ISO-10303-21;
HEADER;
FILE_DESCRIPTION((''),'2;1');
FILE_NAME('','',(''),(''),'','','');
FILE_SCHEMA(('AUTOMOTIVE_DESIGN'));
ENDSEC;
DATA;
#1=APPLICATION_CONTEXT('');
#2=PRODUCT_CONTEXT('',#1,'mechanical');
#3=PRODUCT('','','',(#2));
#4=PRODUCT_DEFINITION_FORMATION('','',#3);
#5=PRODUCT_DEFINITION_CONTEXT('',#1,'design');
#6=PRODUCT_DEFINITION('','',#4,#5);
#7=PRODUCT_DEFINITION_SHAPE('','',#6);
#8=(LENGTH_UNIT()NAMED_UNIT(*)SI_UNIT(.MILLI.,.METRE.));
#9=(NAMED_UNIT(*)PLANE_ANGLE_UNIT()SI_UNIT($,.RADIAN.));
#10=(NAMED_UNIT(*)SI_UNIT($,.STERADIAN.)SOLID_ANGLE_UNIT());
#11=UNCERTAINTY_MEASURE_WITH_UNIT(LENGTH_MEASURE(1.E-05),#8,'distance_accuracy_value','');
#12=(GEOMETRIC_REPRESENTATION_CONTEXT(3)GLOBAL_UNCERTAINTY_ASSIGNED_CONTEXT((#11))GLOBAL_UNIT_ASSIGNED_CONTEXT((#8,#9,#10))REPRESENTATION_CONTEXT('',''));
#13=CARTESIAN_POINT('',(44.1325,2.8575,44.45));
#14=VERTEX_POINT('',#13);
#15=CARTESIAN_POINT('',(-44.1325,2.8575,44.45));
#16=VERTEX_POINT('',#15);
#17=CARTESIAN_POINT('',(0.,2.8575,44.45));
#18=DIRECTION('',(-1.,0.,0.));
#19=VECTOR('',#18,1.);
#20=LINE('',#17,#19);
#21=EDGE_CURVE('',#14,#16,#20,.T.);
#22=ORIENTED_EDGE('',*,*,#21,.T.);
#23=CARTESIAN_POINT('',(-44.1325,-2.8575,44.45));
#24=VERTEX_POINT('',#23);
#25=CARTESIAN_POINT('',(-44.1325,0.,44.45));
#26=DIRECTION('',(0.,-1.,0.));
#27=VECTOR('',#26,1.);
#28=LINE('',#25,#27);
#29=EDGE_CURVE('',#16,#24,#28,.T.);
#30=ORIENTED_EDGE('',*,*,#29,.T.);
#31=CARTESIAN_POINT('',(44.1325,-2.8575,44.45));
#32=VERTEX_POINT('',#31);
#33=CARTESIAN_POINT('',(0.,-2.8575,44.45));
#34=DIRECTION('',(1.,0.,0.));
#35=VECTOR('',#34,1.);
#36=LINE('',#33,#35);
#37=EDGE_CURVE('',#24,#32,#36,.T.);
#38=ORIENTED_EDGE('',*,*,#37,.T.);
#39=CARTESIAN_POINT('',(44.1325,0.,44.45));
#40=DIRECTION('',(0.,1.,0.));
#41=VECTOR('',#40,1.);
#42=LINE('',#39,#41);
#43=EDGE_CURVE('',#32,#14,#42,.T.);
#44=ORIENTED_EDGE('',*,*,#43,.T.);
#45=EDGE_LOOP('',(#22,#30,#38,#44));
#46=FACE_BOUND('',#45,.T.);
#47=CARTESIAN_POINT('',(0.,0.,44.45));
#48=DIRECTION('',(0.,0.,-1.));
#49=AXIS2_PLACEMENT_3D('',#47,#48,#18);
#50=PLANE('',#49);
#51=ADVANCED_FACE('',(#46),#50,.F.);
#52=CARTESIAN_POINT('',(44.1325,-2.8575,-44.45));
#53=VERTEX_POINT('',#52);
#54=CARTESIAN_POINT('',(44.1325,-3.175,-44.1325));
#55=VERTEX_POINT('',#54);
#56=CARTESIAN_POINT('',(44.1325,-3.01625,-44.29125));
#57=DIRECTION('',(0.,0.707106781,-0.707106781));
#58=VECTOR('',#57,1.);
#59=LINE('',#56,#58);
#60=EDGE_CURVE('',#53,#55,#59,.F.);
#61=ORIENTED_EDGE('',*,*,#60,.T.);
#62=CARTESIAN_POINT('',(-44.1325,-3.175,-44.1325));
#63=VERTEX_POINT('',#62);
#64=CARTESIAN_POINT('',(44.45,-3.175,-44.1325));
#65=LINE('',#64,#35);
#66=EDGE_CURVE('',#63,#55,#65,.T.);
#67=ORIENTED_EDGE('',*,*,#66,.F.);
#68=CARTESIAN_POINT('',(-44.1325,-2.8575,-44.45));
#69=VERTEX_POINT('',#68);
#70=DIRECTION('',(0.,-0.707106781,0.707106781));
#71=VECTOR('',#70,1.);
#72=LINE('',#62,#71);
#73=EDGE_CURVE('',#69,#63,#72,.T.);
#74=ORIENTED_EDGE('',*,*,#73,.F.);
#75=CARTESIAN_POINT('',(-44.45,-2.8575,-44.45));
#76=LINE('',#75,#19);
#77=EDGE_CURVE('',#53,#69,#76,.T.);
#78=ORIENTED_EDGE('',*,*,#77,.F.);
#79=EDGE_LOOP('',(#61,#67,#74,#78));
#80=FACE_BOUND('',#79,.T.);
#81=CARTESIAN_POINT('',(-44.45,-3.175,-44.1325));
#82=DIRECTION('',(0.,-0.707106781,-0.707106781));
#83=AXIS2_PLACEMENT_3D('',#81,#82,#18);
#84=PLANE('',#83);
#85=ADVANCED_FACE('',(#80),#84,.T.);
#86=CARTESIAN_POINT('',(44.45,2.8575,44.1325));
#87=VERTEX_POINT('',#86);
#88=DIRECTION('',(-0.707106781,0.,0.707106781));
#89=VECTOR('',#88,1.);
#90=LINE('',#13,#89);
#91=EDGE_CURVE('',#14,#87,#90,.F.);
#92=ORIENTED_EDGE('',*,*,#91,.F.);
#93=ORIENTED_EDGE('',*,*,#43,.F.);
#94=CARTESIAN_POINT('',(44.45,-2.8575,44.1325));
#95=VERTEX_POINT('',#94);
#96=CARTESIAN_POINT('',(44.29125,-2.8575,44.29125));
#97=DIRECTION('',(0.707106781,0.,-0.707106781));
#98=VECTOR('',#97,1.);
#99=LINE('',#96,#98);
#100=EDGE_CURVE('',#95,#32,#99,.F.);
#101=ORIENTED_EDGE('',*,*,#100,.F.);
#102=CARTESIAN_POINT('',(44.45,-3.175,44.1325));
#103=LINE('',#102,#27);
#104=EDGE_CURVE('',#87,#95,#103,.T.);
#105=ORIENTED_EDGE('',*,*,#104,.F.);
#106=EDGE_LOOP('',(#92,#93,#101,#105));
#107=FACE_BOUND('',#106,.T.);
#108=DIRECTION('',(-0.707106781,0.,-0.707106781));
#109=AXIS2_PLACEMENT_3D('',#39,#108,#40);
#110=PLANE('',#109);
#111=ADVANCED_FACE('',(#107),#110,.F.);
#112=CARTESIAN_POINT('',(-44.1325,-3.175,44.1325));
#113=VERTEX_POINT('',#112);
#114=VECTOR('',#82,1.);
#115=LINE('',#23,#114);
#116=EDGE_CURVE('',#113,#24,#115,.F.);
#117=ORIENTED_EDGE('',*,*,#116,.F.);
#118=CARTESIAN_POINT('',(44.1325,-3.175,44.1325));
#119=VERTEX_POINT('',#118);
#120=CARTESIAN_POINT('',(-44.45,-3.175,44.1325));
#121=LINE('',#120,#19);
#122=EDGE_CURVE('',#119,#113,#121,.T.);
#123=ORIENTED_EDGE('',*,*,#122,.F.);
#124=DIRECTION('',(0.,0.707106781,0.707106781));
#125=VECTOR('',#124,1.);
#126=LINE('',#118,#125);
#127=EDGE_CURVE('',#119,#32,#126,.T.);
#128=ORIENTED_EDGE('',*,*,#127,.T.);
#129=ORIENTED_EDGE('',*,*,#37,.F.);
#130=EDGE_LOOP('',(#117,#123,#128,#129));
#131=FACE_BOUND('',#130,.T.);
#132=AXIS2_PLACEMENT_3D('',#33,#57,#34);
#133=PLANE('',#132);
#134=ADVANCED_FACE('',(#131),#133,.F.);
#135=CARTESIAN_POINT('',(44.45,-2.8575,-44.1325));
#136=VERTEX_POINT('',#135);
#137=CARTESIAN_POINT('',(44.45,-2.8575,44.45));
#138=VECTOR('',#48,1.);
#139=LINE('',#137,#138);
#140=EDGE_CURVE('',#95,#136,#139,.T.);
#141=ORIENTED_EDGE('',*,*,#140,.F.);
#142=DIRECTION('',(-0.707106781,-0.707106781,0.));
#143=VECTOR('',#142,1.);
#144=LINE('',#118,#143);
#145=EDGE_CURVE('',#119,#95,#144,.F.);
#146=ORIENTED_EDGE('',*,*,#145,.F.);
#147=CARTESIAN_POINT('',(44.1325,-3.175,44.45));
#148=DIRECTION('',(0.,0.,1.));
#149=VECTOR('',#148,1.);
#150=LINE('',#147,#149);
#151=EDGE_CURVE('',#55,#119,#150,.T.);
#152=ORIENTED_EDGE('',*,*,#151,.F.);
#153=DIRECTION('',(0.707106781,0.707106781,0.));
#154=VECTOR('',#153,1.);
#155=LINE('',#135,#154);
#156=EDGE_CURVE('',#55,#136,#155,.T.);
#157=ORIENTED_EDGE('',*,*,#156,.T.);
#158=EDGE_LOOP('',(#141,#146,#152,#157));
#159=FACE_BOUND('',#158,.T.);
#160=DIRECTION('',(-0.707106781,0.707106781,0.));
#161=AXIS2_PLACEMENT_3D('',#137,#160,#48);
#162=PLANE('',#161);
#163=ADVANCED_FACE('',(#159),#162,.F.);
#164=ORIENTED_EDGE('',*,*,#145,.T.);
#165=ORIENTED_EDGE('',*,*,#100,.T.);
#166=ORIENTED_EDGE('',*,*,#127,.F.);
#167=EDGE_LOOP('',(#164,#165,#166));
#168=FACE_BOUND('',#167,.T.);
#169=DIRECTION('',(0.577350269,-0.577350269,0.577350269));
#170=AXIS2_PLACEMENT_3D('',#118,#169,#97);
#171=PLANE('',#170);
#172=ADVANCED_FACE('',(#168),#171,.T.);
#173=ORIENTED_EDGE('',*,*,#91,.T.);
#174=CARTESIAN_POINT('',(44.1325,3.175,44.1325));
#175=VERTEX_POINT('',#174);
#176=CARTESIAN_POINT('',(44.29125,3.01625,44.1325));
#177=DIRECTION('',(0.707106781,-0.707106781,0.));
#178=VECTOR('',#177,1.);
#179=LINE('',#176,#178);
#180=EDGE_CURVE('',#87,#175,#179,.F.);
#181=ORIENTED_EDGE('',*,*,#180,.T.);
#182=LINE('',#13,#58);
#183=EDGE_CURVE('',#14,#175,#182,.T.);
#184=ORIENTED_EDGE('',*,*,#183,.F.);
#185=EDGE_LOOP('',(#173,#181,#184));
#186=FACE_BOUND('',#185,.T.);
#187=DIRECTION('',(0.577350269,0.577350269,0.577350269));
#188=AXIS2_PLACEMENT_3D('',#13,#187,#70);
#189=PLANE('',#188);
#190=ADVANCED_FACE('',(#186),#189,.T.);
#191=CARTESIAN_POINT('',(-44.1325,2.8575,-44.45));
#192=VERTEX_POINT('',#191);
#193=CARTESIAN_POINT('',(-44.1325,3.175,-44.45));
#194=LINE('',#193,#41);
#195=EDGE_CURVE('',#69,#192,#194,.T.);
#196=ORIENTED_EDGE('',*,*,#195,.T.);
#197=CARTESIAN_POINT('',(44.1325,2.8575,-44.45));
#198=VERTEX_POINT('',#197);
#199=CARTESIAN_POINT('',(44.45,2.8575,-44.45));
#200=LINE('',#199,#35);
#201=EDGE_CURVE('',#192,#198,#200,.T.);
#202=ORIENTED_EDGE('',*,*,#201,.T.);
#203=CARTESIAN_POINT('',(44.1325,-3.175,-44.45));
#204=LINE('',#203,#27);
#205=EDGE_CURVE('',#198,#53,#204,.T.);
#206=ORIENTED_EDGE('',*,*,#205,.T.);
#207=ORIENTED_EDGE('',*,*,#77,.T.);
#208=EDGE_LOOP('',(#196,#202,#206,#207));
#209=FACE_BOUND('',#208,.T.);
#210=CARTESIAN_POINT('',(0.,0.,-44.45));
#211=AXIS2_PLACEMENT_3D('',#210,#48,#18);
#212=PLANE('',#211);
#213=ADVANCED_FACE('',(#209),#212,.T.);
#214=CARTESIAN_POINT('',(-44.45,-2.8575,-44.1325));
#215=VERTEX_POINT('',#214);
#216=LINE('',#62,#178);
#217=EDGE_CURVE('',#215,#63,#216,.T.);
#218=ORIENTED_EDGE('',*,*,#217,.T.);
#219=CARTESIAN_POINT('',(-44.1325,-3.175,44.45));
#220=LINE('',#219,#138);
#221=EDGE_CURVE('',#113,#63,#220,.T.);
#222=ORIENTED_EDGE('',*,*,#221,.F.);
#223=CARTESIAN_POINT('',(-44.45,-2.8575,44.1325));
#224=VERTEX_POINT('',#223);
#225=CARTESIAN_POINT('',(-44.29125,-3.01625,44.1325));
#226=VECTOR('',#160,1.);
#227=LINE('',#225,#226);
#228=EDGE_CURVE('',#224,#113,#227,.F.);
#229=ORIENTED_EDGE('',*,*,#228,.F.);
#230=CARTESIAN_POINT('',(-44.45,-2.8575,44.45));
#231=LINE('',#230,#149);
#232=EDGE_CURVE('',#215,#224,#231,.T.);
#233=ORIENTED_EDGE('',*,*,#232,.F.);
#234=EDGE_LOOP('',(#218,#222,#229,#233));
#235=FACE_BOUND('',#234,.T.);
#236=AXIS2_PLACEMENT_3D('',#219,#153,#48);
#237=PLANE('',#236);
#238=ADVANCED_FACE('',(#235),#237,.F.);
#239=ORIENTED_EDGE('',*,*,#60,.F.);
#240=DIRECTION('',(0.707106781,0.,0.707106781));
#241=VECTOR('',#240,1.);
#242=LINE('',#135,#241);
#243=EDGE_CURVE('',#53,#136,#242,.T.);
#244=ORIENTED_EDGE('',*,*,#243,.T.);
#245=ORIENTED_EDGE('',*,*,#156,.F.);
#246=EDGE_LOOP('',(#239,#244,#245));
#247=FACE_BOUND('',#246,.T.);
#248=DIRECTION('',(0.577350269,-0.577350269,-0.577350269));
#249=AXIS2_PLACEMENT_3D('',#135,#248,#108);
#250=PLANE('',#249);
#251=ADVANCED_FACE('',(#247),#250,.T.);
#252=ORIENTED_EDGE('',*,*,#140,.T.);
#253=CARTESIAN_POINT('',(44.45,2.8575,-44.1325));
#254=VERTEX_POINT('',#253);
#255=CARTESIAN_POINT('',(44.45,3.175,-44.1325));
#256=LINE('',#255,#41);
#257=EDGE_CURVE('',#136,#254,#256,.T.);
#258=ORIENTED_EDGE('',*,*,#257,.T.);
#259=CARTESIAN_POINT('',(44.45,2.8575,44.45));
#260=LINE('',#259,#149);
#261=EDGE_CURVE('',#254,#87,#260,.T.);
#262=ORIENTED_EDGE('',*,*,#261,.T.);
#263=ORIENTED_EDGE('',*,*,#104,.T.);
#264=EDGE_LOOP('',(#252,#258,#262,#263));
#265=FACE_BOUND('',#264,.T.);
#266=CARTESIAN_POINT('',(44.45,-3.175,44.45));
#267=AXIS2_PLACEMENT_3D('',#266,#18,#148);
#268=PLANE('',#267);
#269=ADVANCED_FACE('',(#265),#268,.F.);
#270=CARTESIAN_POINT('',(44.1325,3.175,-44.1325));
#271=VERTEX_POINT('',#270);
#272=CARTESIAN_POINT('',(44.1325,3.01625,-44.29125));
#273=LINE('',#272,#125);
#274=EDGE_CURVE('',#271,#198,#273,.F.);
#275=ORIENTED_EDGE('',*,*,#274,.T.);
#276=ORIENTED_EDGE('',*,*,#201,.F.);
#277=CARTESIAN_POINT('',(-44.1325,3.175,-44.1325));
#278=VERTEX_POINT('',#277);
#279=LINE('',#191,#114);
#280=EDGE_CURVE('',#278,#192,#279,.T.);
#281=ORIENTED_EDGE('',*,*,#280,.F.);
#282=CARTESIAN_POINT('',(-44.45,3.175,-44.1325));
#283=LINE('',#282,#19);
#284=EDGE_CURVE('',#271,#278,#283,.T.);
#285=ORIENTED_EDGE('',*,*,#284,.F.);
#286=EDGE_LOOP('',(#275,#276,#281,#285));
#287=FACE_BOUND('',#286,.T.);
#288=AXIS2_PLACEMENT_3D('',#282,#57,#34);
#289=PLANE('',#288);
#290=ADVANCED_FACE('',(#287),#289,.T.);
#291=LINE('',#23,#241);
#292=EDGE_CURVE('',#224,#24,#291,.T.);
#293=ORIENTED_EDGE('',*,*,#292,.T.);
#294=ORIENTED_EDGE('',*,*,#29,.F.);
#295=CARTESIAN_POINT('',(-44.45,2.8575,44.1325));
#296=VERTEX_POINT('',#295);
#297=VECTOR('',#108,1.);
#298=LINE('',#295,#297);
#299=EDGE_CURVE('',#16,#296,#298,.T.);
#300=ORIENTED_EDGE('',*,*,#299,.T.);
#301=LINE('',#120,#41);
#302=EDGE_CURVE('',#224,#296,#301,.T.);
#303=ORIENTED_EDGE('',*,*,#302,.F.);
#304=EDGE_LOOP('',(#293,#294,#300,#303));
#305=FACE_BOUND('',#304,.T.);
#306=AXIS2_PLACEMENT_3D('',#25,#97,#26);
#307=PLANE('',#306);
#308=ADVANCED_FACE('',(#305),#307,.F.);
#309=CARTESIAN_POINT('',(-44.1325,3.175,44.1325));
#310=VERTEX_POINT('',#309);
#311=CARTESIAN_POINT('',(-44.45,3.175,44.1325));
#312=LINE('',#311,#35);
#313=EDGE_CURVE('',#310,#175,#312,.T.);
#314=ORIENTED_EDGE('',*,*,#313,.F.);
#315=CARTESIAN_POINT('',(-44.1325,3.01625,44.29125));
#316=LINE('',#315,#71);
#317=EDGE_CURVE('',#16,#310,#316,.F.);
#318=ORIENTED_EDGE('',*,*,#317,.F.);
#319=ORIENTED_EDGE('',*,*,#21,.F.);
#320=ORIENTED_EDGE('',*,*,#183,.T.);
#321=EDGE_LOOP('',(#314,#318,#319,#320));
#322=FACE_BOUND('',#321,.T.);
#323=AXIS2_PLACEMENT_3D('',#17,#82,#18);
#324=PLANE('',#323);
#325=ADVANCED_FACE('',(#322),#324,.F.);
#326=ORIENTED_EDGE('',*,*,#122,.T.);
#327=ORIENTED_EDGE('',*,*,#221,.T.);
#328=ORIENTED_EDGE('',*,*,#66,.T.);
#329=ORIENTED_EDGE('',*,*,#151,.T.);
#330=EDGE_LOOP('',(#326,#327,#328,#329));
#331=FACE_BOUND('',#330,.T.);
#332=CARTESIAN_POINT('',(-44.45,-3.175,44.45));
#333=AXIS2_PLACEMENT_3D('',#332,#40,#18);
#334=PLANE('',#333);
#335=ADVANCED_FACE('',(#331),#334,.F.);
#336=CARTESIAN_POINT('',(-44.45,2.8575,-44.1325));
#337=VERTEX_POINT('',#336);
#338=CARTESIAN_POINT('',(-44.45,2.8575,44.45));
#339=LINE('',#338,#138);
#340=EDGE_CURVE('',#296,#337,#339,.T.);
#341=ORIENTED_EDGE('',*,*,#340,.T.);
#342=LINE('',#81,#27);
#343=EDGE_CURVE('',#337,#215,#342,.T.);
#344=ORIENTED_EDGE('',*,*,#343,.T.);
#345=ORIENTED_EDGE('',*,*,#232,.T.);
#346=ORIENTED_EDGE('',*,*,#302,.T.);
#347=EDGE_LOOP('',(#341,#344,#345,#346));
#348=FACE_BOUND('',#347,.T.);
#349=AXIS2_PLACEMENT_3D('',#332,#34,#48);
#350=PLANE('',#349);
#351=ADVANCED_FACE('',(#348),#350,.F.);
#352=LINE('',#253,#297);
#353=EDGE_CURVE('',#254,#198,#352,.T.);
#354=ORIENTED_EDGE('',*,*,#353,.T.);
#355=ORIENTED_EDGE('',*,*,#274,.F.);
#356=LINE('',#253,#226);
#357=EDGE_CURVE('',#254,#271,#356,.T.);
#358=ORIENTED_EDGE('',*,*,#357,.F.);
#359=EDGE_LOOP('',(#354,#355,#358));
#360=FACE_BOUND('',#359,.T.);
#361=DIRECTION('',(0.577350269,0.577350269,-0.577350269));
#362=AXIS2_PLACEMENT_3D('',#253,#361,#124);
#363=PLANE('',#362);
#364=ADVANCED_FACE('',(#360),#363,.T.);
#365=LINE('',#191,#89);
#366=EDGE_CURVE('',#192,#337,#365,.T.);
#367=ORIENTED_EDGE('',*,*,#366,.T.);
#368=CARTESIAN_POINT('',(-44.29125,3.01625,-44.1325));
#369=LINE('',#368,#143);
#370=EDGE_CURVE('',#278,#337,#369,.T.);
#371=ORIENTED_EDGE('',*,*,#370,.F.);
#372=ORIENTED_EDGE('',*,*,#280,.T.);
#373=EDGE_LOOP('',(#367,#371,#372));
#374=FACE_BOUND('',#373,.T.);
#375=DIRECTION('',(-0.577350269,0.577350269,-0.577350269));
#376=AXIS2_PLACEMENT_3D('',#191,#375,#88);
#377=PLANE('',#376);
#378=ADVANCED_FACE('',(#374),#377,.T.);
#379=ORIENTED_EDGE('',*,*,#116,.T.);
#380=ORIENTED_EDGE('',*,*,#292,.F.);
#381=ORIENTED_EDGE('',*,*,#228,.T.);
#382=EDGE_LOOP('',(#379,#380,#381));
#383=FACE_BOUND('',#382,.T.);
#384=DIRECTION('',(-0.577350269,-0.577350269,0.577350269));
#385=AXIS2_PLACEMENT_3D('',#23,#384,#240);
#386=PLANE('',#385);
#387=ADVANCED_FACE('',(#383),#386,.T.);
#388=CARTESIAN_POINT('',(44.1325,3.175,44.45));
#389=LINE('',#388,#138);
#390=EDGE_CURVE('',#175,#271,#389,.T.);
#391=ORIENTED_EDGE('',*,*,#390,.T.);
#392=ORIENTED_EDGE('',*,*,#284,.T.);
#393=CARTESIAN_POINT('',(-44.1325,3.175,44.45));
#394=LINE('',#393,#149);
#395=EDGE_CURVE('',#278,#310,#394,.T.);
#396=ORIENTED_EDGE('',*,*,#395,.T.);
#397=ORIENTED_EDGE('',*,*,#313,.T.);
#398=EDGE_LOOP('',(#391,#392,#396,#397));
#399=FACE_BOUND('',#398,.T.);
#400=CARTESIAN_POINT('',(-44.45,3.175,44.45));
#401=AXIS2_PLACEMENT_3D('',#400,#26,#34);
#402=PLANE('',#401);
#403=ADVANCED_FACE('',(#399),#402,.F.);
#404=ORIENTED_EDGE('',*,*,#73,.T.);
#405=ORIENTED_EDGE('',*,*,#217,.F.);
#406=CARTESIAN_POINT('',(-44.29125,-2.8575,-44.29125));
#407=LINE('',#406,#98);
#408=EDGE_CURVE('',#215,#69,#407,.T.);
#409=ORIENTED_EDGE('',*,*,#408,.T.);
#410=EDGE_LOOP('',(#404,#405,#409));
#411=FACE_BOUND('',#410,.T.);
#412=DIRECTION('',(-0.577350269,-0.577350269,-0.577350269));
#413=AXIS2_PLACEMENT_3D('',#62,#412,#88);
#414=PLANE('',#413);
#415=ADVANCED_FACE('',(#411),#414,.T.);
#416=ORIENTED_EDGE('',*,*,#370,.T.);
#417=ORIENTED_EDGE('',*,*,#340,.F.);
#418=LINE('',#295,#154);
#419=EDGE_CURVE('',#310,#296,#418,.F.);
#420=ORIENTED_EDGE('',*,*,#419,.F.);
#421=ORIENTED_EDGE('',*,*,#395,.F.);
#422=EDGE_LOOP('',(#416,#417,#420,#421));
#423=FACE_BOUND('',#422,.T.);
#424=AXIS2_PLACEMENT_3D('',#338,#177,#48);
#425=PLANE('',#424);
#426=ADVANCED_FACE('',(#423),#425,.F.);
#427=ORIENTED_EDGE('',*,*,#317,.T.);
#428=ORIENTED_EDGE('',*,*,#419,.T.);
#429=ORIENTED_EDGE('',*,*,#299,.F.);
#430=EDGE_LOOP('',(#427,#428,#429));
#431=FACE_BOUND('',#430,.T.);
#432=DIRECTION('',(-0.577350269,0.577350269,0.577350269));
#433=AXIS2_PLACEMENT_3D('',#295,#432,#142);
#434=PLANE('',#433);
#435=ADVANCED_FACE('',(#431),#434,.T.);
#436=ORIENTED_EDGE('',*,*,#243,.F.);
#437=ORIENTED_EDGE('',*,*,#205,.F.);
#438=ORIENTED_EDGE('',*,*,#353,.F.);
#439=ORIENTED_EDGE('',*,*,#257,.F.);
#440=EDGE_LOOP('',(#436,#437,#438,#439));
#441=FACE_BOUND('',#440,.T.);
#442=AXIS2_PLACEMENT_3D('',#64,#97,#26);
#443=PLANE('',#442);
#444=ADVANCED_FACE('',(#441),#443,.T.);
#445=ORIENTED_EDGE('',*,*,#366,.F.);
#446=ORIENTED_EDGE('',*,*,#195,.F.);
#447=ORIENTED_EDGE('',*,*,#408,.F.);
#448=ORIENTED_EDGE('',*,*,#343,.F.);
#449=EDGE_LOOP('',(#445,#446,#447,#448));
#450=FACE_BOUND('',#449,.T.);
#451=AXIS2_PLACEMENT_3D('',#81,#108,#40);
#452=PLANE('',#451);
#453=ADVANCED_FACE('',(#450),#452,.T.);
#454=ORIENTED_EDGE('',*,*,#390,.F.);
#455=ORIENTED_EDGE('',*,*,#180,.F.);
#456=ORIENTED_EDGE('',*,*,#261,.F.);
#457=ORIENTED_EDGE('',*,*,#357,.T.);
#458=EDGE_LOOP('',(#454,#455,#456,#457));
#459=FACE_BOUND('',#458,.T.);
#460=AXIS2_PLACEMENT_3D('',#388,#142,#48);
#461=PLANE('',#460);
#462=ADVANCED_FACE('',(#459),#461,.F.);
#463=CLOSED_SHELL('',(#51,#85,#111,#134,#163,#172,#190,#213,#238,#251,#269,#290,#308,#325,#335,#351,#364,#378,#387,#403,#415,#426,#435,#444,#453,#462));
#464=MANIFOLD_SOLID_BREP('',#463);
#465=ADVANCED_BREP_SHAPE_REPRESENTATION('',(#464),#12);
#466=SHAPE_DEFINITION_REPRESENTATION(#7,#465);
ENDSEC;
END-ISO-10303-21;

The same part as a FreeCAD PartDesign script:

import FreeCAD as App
import Part
import Sketcher
Q = App.Units.Quantity

doc = App.newDocument("Part")
body = doc.addObject("PartDesign::Body", "Body")

sketch1 = body.newObject("Sketcher::SketchObject", "Sketch")
sketch1.AttachmentSupport = (doc.getObject("XY_Plane"), [""])
sketch1.MapMode = "FlatFace"
sketch1.addGeometry(Part.LineSegment(App.Vector(-44, 3, 0), App.Vector(-44, -3, 0)), False)
sketch1.addGeometry(Part.LineSegment(App.Vector(-44, -3, 0), App.Vector(44, -3, 0)), False)
sketch1.addGeometry(Part.LineSegment(App.Vector(44, -3, 0), App.Vector(44, 3, 0)), False)
sketch1.addGeometry(Part.LineSegment(App.Vector(44, 3, 0), App.Vector(-44, 3, 0)), False)
sketch1.addConstraint(Sketcher.Constraint("Coincident", 0, 2, 1, 1))
sketch1.addConstraint(Sketcher.Constraint("Coincident", 1, 2, 2, 1))
sketch1.addConstraint(Sketcher.Constraint("Coincident", 2, 2, 3, 1))
sketch1.addConstraint(Sketcher.Constraint("Coincident", 3, 2, 0, 1))
sketch1.addConstraint(Sketcher.Constraint("Vertical", 0))
sketch1.addConstraint(Sketcher.Constraint("Horizontal", 1))
sketch1.addConstraint(Sketcher.Constraint("Vertical", 2))
sketch1.addConstraint(Sketcher.Constraint("Horizontal", 3))
sketch1.addConstraint(Sketcher.Constraint("Symmetric", 0, 2, 2, 2, -1, 1))
sketch1.addConstraint(Sketcher.Constraint("DistanceX", 1, 1, 1, 2, Q("3.5 in")))
sketch1.addConstraint(Sketcher.Constraint("DistanceY", 0, 2, 0, 1, Q("0.25 in")))
pad1 = body.newObject("PartDesign::Pad", "Pad")
pad1.Profile = sketch1
pad1.Length = Q("3.5 in")
pad1.Midplane = True
doc.recompute()

chamfer = body.newObject("PartDesign::Chamfer", "Chamfer")
chamfer.Base = (pad1, ["Edge1"])
chamfer.UseAllEdges = True
chamfer.Size = Q("0.0125 in")

doc.recompute()
